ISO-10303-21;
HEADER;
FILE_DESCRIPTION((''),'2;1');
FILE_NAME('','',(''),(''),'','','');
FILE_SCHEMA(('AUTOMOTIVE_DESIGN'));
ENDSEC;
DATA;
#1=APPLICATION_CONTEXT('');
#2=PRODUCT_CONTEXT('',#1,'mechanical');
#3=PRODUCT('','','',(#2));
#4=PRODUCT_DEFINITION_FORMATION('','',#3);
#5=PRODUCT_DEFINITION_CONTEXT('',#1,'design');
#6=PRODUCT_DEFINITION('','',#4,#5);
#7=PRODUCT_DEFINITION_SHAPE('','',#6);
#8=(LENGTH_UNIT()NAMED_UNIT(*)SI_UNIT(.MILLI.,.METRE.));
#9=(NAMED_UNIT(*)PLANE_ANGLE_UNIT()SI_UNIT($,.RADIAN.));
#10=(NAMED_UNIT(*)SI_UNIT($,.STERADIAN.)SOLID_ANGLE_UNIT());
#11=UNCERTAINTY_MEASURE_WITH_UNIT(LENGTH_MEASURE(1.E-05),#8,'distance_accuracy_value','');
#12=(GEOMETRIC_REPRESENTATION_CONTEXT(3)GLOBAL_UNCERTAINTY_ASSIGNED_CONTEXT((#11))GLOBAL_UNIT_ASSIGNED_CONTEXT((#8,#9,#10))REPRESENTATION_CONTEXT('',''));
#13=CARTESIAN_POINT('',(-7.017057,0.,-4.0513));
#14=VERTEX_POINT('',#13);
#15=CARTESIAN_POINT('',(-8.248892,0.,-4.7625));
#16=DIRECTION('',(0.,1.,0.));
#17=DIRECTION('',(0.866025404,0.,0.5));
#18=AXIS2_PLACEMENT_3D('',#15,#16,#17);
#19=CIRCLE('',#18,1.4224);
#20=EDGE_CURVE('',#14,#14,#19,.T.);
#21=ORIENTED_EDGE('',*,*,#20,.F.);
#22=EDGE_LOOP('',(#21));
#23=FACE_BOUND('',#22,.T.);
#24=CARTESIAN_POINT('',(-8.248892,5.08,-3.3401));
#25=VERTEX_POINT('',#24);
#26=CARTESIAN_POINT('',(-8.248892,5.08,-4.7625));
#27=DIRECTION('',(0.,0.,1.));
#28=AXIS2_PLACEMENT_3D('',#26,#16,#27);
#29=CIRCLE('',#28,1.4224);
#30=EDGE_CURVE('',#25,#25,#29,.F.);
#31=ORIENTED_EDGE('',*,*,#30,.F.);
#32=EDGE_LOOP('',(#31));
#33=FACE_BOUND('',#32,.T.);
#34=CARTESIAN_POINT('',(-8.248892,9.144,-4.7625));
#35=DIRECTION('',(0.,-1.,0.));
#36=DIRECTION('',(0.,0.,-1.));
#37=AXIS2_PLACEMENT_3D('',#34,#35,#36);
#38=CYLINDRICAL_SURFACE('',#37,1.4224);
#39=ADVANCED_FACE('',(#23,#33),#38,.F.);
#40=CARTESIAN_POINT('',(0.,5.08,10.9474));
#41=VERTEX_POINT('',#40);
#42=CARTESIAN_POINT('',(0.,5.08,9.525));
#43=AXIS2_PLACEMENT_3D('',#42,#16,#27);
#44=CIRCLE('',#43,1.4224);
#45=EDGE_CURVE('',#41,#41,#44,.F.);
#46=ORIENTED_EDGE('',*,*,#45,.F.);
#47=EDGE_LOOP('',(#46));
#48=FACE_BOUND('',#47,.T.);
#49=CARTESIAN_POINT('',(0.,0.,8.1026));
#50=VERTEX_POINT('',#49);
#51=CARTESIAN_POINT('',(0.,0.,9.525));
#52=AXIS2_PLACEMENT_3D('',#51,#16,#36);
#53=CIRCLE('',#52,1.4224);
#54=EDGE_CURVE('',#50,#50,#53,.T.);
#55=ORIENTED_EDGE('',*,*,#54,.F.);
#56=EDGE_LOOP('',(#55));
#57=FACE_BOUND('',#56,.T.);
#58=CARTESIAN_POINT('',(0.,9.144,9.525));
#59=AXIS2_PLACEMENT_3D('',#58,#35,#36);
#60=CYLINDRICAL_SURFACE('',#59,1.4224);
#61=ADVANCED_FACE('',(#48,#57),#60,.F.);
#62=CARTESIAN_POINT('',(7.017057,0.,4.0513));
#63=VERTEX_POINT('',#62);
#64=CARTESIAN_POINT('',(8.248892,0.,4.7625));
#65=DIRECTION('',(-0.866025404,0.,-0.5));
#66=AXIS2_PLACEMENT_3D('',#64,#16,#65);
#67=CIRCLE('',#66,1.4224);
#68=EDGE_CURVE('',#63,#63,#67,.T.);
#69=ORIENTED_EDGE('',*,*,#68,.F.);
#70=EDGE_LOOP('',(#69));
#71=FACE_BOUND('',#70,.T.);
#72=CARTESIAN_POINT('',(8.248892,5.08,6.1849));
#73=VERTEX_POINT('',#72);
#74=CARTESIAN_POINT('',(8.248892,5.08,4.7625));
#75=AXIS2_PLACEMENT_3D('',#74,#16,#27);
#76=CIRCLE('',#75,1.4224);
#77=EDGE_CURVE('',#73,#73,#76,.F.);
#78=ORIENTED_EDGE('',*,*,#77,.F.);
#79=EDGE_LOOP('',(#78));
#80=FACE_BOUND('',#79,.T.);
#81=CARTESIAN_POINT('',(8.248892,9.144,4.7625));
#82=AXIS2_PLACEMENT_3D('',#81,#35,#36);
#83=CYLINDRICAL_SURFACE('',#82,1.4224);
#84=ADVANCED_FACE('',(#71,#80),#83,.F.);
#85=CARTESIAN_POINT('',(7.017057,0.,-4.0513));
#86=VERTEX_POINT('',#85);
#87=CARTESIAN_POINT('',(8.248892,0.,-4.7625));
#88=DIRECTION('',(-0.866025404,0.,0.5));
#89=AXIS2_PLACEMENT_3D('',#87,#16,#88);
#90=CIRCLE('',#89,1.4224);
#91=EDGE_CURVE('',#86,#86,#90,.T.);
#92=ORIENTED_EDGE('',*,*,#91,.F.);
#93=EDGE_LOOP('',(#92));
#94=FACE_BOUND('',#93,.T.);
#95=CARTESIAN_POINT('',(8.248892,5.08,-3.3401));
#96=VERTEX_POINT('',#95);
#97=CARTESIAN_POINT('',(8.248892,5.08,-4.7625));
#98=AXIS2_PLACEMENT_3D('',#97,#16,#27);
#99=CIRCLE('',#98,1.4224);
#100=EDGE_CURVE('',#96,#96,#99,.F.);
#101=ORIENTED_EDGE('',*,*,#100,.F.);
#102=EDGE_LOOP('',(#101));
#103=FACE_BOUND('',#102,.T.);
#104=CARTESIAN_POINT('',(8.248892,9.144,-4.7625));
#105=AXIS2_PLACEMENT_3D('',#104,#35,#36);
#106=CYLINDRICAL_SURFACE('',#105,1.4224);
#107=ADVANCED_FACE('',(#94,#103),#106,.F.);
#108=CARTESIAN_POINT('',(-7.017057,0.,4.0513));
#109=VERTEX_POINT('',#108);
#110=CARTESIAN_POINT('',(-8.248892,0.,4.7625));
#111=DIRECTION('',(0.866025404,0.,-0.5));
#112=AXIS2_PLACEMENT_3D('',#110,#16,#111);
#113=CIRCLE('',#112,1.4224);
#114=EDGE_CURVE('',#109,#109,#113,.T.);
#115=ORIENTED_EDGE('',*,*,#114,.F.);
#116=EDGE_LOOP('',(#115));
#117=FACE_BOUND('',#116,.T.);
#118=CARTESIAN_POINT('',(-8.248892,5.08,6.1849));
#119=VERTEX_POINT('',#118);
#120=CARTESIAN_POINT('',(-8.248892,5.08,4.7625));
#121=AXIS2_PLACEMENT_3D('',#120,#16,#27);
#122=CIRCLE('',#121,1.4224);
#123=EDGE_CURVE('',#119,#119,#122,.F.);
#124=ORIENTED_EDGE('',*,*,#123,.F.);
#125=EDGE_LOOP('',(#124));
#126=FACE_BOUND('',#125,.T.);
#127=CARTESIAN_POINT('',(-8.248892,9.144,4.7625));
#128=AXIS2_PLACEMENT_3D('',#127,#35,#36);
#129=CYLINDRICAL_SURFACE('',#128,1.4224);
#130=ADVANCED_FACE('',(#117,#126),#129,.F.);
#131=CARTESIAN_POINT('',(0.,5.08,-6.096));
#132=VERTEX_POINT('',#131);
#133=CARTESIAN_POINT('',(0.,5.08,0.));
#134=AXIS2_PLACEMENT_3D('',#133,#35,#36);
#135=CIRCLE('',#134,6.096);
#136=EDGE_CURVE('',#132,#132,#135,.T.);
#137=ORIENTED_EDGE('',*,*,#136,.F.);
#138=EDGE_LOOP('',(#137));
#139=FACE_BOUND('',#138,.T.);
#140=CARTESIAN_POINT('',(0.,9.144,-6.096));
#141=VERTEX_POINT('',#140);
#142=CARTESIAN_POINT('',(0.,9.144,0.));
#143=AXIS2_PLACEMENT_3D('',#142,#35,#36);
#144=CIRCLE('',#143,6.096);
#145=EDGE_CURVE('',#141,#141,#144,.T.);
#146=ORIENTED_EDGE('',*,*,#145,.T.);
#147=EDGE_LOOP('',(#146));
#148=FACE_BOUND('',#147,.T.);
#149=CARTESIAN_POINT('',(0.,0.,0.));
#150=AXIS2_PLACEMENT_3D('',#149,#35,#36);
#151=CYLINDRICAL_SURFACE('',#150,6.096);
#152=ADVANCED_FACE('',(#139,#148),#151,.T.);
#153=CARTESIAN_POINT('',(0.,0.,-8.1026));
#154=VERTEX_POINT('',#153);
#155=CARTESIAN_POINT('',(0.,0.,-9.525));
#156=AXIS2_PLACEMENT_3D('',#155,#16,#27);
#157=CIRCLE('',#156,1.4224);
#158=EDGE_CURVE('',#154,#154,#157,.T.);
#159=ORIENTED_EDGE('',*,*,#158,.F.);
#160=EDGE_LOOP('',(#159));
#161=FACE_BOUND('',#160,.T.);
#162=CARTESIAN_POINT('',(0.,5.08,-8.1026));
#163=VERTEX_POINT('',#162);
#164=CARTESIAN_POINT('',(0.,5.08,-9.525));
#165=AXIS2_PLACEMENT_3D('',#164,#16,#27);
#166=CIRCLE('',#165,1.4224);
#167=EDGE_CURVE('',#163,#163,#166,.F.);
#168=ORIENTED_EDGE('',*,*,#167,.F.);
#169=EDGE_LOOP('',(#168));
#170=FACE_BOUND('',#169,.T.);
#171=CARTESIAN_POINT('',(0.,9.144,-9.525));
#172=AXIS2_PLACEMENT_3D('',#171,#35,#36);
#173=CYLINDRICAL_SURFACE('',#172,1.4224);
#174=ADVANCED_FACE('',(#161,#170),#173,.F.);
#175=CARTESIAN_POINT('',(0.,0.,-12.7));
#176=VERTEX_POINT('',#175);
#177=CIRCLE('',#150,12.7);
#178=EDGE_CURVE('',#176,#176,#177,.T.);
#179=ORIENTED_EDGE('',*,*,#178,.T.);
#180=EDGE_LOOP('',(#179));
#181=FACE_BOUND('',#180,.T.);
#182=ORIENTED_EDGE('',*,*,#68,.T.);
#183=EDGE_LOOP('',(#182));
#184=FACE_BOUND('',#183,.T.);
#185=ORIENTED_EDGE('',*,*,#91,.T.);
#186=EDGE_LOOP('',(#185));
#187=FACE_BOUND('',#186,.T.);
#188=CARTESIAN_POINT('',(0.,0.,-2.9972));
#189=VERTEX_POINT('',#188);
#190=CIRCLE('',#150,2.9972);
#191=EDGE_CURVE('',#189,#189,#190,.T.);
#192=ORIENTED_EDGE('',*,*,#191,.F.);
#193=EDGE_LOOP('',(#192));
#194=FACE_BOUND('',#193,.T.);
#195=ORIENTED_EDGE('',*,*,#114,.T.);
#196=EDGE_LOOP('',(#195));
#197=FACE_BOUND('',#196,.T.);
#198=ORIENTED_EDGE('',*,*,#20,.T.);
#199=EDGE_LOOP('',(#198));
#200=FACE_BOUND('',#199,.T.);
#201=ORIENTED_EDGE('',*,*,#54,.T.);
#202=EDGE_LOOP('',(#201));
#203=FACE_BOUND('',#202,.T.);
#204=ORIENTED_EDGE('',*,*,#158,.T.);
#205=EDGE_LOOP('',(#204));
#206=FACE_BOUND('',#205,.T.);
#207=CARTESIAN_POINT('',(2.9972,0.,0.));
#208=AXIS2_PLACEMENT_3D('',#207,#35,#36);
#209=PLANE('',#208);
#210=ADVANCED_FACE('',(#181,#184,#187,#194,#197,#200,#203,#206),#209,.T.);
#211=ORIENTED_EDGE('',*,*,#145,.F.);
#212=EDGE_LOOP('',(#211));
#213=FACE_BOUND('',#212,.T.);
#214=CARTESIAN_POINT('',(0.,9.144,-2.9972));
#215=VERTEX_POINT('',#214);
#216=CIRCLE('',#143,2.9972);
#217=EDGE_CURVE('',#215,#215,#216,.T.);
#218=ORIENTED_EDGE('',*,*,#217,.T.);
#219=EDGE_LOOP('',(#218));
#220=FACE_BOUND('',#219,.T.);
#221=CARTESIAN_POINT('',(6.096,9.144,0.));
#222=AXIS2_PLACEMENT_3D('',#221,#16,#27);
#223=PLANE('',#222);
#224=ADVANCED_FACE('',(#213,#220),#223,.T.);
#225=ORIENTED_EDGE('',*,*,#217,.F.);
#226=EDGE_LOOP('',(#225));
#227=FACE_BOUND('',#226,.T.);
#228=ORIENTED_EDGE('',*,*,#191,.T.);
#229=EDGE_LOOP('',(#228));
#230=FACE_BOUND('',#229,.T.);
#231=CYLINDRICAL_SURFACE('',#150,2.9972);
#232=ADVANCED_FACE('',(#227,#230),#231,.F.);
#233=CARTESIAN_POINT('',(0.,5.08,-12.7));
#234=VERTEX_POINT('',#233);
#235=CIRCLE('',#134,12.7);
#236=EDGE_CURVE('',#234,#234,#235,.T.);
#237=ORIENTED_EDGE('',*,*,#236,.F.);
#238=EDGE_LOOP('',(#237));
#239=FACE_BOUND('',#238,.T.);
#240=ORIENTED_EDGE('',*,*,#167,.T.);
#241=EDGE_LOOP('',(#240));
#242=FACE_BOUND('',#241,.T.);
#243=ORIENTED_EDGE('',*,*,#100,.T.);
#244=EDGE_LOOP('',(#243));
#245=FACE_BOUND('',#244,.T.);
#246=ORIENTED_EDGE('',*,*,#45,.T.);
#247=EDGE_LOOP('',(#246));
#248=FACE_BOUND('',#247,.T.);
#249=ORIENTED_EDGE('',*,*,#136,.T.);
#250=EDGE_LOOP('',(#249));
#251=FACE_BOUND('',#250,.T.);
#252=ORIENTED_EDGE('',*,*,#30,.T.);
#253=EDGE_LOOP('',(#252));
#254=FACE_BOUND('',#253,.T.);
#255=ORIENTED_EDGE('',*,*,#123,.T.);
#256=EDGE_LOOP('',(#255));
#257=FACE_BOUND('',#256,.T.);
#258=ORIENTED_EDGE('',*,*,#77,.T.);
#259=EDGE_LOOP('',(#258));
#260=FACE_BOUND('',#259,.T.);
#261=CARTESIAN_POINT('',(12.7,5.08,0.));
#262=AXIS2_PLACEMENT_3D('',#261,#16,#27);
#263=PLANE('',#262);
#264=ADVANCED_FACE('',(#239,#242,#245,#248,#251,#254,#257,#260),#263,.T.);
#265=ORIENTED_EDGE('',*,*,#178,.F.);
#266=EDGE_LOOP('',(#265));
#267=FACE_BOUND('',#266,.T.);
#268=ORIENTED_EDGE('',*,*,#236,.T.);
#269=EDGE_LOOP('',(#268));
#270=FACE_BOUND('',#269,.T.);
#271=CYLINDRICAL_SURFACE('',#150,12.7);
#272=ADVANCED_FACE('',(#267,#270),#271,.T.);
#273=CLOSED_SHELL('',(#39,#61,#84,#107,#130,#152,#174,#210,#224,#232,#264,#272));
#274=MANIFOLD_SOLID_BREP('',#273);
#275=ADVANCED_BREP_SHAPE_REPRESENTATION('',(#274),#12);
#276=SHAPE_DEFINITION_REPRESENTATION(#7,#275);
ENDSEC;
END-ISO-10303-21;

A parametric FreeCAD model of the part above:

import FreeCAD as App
import Part
import Sketcher

V = App.Vector
Q = App.Units.Quantity


def add_polygon(sketch, points):
    """Adds a closed chain of lines whose ends are joined by coincident constraints."""
    first, n = sketch.GeometryCount, len(points)
    for a, b in zip(points, points[1:] + points[:1]):
        sketch.addGeometry(Part.LineSegment(App.Vector(*a, 0), App.Vector(*b, 0)), False)
    for i in range(n):
        sketch.addConstraint(Sketcher.Constraint("Coincident", first + i, 2, first + (i + 1) % n, 1))

doc = App.newDocument("Part")
body = doc.addObject("PartDesign::Body", "Body")

sketch1 = body.newObject("Sketcher::SketchObject", "Sketch")
sketch1.AttachmentSupport = (doc.getObject("XY_Plane"), [""])
sketch1.MapMode = "FlatFace"
add_polygon(sketch1, [(3, 0), (12.7, 0), (12.7, 5.1), (6.1, 5.1), (6.1, 9.1), (3, 9.1)])
sketch1.addConstraint([
    Sketcher.Constraint("Horizontal", 0),
    Sketcher.Constraint("Vertical", 1),
    Sketcher.Constraint("Horizontal", 2),
    Sketcher.Constraint("Vertical", 3),
    Sketcher.Constraint("Horizontal", 4),
    Sketcher.Constraint("Vertical", 5),
    Sketcher.Constraint("PointOnObject", 0, 2, -1),
    Sketcher.Constraint("DistanceY", 1, 1, 1, 2, Q("0.2 in")),
    Sketcher.Constraint("DistanceX", 2, 2, 2, 1, Q("0.26 in")),
    Sketcher.Constraint("DistanceY", 3, 1, 3, 2, Q("0.16 in")),
    Sketcher.Constraint("DistanceX", -1, 1, 0, 2, Q("0.5 in")),
    Sketcher.Constraint("DistanceX", 0, 1, 0, 2, Q("0.382 in")),
])
revolution = body.newObject("PartDesign::Revolution", "Revolution")
revolution.Profile = sketch1
revolution.ReferenceAxis = (sketch1, ["V_Axis"])
revolution.Angle = 360

sketch2 = body.newObject("Sketcher::SketchObject", "Sketch001")
sketch2.AttachmentSupport = (doc.getObject("XZ_Plane"), [""])
sketch2.MapMode = "FlatFace"
sketch2.addGeometry(Part.Circle(V(0, -9.5, 0), V(0, 0, 1), 1.4), False)
sketch2.addConstraint([
    Sketcher.Constraint("PointOnObject", 0, 3, -2),
    Sketcher.Constraint("Diameter", 0, Q("0.112 in")),
    Sketcher.Constraint("DistanceY", 0, 3, -1, 1, Q("0.375 in")),
])
pocket1 = body.newObject("PartDesign::Pocket", "Pocket")
pocket1.Profile = sketch2
pocket1.Type = "ThroughAll"
doc.recompute()

polarpattern = body.newObject("PartDesign::PolarPattern", "PolarPattern")
polarpattern.Originals = [pocket1]
polarpattern.Axis = (doc.getObject("Y_Axis"), [""])
polarpattern.Angle = 360
polarpattern.Occurrences = 6
body.Tip = polarpattern

doc.recompute()
